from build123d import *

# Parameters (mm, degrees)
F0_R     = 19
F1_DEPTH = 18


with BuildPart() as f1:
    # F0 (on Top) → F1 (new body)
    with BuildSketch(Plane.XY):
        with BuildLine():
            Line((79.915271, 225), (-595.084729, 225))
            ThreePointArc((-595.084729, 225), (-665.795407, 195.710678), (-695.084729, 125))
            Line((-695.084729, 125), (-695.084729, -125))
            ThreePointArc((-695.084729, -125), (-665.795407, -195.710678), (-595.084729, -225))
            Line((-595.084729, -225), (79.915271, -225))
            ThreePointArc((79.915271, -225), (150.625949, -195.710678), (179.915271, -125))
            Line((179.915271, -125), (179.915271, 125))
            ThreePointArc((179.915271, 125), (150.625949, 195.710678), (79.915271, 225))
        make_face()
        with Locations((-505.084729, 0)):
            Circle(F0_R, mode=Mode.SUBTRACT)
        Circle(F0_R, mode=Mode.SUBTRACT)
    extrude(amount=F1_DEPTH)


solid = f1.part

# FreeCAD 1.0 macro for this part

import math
import FreeCAD as App
import Part
import Sketcher
Q = App.Units.Quantity

doc = App.newDocument("Part")
body = doc.addObject("PartDesign::Body", "Body")

# Sketch on XY plane
sketch1 = doc.addObject("Sketcher::SketchObject", "Sketch")
body.addObject(sketch1)
sketch1.AttachmentSupport = (doc.XY_Plane, [""])
sketch1.MapMode = "FlatFace"
sketch1.addGeometry(Part.LineSegment(App.Vector(80, 225, 0), App.Vector(-595, 225, 0)), False)
sketch1.addGeometry(Part.ArcOfCircle(Part.Circle(App.Vector(-595, 125, 0), App.Vector(0, 0, 1), 100), math.radians(90), math.radians(180)), False)
sketch1.addGeometry(Part.LineSegment(App.Vector(-695, 125, 0), App.Vector(-695, -125, 0)), False)
sketch1.addGeometry(Part.ArcOfCircle(Part.Circle(App.Vector(-595, -125, 0), App.Vector(0, 0, 1), 100), math.radians(-180), math.radians(-90)), False)
sketch1.addGeometry(Part.LineSegment(App.Vector(-595, -225, 0), App.Vector(80, -225, 0)), False)
sketch1.addGeometry(Part.ArcOfCircle(Part.Circle(App.Vector(80, -125, 0), App.Vector(0, 0, 1), 100), math.radians(-90), math.radians(0)), False)
sketch1.addGeometry(Part.LineSegment(App.Vector(180, -125, 0), App.Vector(180, 125, 0)), False)
sketch1.addGeometry(Part.ArcOfCircle(Part.Circle(App.Vector(80, 125, 0), App.Vector(0, 0, 1), 100), math.radians(0), math.radians(90)), False)
sketch1.addGeometry(Part.Circle(App.Vector(-505, 0, 0), App.Vector(0, 0, 1), 19), False)
sketch1.addGeometry(Part.Circle(App.Vector(0, 0, 0), App.Vector(0, 0, 1), 19), False)
sketch1.addConstraint(Sketcher.Constraint("Tangent", 0, 2, 1, 1))
sketch1.addConstraint(Sketcher.Constraint("Tangent", 1, 2, 2, 1))
sketch1.addConstraint(Sketcher.Constraint("Tangent", 2, 2, 3, 1))
sketch1.addConstraint(Sketcher.Constraint("Tangent", 3, 2, 4, 1))
sketch1.addConstraint(Sketcher.Constraint("Tangent", 4, 2, 5, 1))
sketch1.addConstraint(Sketcher.Constraint("Tangent", 5, 2, 6, 1))
sketch1.addConstraint(Sketcher.Constraint("Tangent", 6, 2, 7, 1))
sketch1.addConstraint(Sketcher.Constraint("Tangent", 7, 2, 0, 1))
sketch1.addConstraint(Sketcher.Constraint("Horizontal", 0))
sketch1.addConstraint(Sketcher.Constraint("Vertical", 2))
sketch1.addConstraint(Sketcher.Constraint("Horizontal", 4))
sketch1.addConstraint(Sketcher.Constraint("Vertical", 6))
sketch1.addConstraint(Sketcher.Constraint("Coincident", 9, 3, -1, 1))
sketch1.addConstraint(Sketcher.Constraint("Equal", 1, 3))
sketch1.addConstraint(Sketcher.Constraint("Equal", 3, 5))
sketch1.addConstraint(Sketcher.Constraint("Equal", 5, 7))
sketch1.addConstraint(Sketcher.Constraint("Equal", 8, 9))
sketch1.addConstraint(Sketcher.Constraint("PointOnObject", 8, 3, -1))
sketch1.addConstraint(Sketcher.Constraint("Diameter", 8, Q("38 mm")))
sketch1.addConstraint(Sketcher.Constraint("Radius", 1, Q("100 mm")))
sketch1.addConstraint(Sketcher.Constraint("DistanceX", 0, 2, 0, 1, Q("675 mm")))
sketch1.addConstraint(Sketcher.Constraint("DistanceY", 2, 2, 2, 1, Q("250 mm")))
sketch1.addConstraint(Sketcher.Constraint("DistanceY", -1, 1, 1, 3, Q("125 mm")))
sketch1.addConstraint(Sketcher.Constraint("DistanceX", 1, 3, 8, 3, Q("90 mm")))
sketch1.addConstraint(Sketcher.Constraint("DistanceX", 1, 3, -1, 1, Q("595.084729 mm")))
pad1 = doc.addObject("PartDesign::Pad", "Pad")
body.addObject(pad1)
pad1.Profile = sketch1
pad1.Length = 18

doc.recompute()
